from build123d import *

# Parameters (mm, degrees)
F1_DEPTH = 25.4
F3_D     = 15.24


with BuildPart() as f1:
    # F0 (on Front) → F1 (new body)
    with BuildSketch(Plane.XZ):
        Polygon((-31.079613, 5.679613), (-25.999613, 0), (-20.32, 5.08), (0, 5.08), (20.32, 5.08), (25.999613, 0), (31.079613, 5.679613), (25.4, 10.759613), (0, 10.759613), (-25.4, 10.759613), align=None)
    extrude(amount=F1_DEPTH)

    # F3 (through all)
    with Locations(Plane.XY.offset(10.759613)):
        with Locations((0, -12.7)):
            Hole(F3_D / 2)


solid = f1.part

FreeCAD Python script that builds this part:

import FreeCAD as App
import Part
import Sketcher
Q = App.Units.Quantity

doc = App.newDocument("Part")
body = doc.addObject("PartDesign::Body", "Body")

sketch1 = body.newObject("Sketcher::SketchObject", "Sketch")
sketch1.AttachmentSupport = (doc.getObject("XZ_Plane"), [""])
sketch1.MapMode = "FlatFace"
sketch1.addGeometry(Part.LineSegment(App.Vector(-31, 6, 0), App.Vector(-26, 0, 0)), False)
sketch1.addGeometry(Part.LineSegment(App.Vector(-26, 0, 0), App.Vector(-20, 5, 0)), False)
sketch1.addGeometry(Part.LineSegment(App.Vector(-20, 5, 0), App.Vector(20, 5, 0)), False)
sketch1.addGeometry(Part.LineSegment(App.Vector(20, 5, 0), App.Vector(26, 0, 0)), False)
sketch1.addGeometry(Part.LineSegment(App.Vector(26, 0, 0), App.Vector(31, 6, 0)), False)
sketch1.addGeometry(Part.LineSegment(App.Vector(31, 6, 0), App.Vector(25, 11, 0)), False)
sketch1.addGeometry(Part.LineSegment(App.Vector(25, 11, 0), App.Vector(-25, 11, 0)), False)
sketch1.addGeometry(Part.LineSegment(App.Vector(-25, 11, 0), App.Vector(-31, 6, 0)), False)
sketch1.addConstraint(Sketcher.Constraint("Coincident", 0, 2, 1, 1))
sketch1.addConstraint(Sketcher.Constraint("Coincident", 1, 2, 2, 1))
sketch1.addConstraint(Sketcher.Constraint("Coincident", 2, 2, 3, 1))
sketch1.addConstraint(Sketcher.Constraint("Coincident", 3, 2, 4, 1))
sketch1.addConstraint(Sketcher.Constraint("Coincident", 4, 2, 5, 1))
sketch1.addConstraint(Sketcher.Constraint("Coincident", 5, 2, 6, 1))
sketch1.addConstraint(Sketcher.Constraint("Coincident", 6, 2, 7, 1))
sketch1.addConstraint(Sketcher.Constraint("Coincident", 7, 2, 0, 1))
sketch1.addConstraint(Sketcher.Constraint("Horizontal", 2))
sketch1.addConstraint(Sketcher.Constraint("Horizontal", 6))
sketch1.addConstraint(Sketcher.Constraint("Symmetric", 0, 2, 3, 2, -1, 1))
sketch1.addConstraint(Sketcher.Constraint("Symmetric", 4, 2, 7, 2, -2))
sketch1.addConstraint(Sketcher.Constraint("PointOnObject", 0, 2, -1))
sketch1.addConstraint(Sketcher.Constraint("Perpendicular", 0, 1))
sketch1.addConstraint(Sketcher.Constraint("Perpendicular", 3, 4))
sketch1.addConstraint(Sketcher.Constraint("Perpendicular", 4, 5))
sketch1.addConstraint(Sketcher.Constraint("Parallel", 1, 7))
sketch1.addConstraint(Sketcher.Constraint("Equal", 0, 1))
sketch1.addConstraint(Sketcher.Constraint("Equal", 4, 5))
sketch1.addConstraint(Sketcher.Constraint("DistanceX", 6, 2, 6, 1, Q("2 in")))
sketch1.addConstraint(Sketcher.Constraint("DistanceX", 2, 1, 2, 2, Q("1.6 in")))
sketch1.addConstraint(Sketcher.Constraint("Distance", 0, Q("0.3 in")))
pad1 = body.newObject("PartDesign::Pad", "Pad")
pad1.Profile = sketch1
pad1.Length = Q("1 in")

sketch2 = body.newObject("Sketcher::SketchObject", "Sketch001")
sketch2.AttachmentSupport = (doc.getObject("XY_Plane"), [""])
sketch2.MapMode = "FlatFace"
sketch2.AttachmentOffset = App.Placement(App.Vector(0, 0, 10.759613), App.Rotation())
sketch2.addGeometry(Part.Circle(App.Vector(0, -13, 0), App.Vector(0, 0, 1), 8), False)
sketch2.addConstraint(Sketcher.Constraint("PointOnObject", 0, 3, -2))
sketch2.addConstraint(Sketcher.Constraint("Diameter", 0, Q("0.6 in")))
sketch2.addConstraint(Sketcher.Constraint("DistanceY", 0, 3, -1, 1, Q("0.5 in")))
doc.recompute()
hole = body.newObject("PartDesign::Hole", "Hole")
hole.Profile = sketch2
hole.ThreadType = "None"
hole.Diameter = Q("0.6 in")
hole.DepthType = "ThroughAll"

doc.recompute()
